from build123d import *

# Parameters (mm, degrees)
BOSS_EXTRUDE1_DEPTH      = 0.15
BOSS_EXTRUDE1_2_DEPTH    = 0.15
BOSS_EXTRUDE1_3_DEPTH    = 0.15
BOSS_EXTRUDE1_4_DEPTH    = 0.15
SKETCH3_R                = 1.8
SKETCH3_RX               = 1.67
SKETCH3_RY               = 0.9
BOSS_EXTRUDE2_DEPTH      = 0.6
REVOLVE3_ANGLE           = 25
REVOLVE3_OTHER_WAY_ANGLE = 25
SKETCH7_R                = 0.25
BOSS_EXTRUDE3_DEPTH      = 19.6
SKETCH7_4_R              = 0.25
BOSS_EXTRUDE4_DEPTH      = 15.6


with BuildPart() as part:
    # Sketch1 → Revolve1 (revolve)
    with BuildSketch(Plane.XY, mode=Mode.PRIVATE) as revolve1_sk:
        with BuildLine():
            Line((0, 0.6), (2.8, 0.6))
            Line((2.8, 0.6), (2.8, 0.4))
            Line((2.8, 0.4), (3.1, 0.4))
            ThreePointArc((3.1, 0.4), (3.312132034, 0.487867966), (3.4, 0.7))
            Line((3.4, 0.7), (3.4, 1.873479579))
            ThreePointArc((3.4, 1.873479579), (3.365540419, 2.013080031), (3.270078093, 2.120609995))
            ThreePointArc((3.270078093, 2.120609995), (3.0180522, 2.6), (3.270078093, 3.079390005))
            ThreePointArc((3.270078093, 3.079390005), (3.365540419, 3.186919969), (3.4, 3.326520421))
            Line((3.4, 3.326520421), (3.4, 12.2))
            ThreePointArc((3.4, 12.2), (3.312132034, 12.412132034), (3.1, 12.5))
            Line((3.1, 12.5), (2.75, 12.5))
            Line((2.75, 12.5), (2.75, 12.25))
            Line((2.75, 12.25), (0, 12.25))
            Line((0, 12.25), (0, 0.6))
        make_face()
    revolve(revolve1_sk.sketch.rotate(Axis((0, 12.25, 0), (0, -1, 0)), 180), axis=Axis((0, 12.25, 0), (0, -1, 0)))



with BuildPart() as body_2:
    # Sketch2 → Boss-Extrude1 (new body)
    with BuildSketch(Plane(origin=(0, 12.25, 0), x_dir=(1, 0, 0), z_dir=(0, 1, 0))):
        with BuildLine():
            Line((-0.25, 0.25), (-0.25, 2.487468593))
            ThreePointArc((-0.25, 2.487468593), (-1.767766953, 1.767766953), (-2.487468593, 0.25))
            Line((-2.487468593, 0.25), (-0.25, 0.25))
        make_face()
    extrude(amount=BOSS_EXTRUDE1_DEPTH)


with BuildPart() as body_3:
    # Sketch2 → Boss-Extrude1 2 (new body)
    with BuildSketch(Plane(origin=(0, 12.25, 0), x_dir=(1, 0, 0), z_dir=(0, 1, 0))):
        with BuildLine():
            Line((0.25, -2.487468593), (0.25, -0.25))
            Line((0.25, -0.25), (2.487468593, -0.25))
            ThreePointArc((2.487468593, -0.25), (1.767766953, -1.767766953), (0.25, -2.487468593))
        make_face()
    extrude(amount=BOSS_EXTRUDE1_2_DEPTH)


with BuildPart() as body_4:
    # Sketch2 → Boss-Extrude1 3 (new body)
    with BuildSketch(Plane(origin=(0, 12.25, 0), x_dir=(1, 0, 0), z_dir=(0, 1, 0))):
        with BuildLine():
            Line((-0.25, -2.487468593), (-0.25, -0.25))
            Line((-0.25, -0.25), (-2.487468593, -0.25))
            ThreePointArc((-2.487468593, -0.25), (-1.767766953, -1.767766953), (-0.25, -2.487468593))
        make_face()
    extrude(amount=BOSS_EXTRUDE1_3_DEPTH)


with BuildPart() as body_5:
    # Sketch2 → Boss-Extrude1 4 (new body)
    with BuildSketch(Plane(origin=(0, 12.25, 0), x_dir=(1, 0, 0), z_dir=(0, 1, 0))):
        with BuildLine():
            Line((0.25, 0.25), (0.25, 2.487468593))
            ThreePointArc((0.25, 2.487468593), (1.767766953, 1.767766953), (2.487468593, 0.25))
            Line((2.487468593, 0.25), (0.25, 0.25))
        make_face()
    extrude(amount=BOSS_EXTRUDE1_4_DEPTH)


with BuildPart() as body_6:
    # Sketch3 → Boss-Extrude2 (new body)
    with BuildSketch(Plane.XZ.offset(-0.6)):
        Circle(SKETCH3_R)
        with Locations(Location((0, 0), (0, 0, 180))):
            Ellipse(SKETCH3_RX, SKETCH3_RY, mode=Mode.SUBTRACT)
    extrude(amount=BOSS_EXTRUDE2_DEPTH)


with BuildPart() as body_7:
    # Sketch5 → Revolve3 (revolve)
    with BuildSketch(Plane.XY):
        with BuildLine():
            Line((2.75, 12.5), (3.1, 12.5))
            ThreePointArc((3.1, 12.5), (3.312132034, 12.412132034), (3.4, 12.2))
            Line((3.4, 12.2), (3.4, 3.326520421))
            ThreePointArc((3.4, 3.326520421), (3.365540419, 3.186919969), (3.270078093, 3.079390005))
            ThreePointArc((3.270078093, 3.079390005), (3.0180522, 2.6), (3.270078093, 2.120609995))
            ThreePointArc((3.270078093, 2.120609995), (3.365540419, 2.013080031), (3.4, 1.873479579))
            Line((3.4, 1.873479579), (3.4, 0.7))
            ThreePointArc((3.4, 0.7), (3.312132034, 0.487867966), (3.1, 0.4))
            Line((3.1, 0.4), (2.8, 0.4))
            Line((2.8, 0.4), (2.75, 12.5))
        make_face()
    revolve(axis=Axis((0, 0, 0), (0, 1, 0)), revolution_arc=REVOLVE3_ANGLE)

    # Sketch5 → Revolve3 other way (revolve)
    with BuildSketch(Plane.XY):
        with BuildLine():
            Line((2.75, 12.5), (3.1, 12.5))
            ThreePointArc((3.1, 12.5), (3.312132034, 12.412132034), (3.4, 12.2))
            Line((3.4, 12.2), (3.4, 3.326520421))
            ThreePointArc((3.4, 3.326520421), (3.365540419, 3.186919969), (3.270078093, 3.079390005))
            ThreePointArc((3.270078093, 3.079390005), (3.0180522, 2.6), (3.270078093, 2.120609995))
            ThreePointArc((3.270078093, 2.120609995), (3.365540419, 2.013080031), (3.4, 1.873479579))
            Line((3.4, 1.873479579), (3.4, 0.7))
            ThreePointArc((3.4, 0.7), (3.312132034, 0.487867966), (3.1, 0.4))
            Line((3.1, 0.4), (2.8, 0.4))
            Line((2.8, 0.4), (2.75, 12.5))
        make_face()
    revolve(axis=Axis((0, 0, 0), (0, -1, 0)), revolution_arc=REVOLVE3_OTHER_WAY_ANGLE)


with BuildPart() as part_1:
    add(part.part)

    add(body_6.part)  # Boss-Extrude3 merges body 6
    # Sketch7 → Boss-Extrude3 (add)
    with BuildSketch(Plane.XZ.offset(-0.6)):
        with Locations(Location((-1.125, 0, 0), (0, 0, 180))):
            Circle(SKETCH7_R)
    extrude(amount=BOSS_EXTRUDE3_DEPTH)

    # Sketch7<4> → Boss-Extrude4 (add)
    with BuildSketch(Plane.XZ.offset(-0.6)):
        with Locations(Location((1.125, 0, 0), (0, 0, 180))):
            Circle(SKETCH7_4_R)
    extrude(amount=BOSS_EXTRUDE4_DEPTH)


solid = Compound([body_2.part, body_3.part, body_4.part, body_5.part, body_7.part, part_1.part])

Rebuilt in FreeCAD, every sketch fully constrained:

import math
import FreeCAD as App
import Part
import Sketcher

doc = App.newDocument("Part")
body = doc.addObject("PartDesign::Body", "Body")

sketch1 = doc.addObject("Sketcher::SketchObject", "Sketch")
body.addObject(sketch1)
sketch1.AttachmentSupport = (doc.XY_Plane, [""])
sketch1.MapMode = "FlatFace"
sketch1.addGeometry([
    Part.LineSegment(App.Vector(0, 0.6, 0), App.Vector(2.8, 0.6, 0)),
    Part.LineSegment(App.Vector(2.8, 0.6, 0), App.Vector(2.8, 0.4, 0)),
    Part.LineSegment(App.Vector(2.8, 0.4, 0), App.Vector(3.1, 0.4, 0)),
    Part.ArcOfCircle(Part.Circle(App.Vector(3.1, 0.7, 0), App.Vector(0, 0, 1), 0.3), math.radians(-90), math.radians(0)),
    Part.LineSegment(App.Vector(3.4, 0.7, 0), App.Vector(3.4, 1.87, 0)),
    Part.ArcOfCircle(Part.Circle(App.Vector(3.1, 1.87, 0), App.Vector(0, 0, 1), 0.3), math.radians(0), math.radians(55)),
    Part.ArcOfCircle(Part.Circle(App.Vector(3.6, 2.6, 0), App.Vector(0, 0, 1), 0.58), math.radians(125), math.radians(235)),
    Part.ArcOfCircle(Part.Circle(App.Vector(3.1, 3.33, 0), App.Vector(0, 0, 1), 0.3), math.radians(-55), math.radians(0)),
    Part.LineSegment(App.Vector(3.4, 3.33, 0), App.Vector(3.4, 12.2, 0)),
    Part.ArcOfCircle(Part.Circle(App.Vector(3.1, 12.2, 0), App.Vector(0, 0, 1), 0.3), math.radians(0), math.radians(90)),
    Part.LineSegment(App.Vector(3.1, 12.5, 0), App.Vector(2.75, 12.5, 0)),
    Part.LineSegment(App.Vector(2.75, 12.5, 0), App.Vector(2.75, 12.25, 0)),
    Part.LineSegment(App.Vector(2.75, 12.25, 0), App.Vector(0, 12.25, 0)),
    Part.LineSegment(App.Vector(0, 12.25, 0), App.Vector(0, 0.6, 0)),
], False)
sketch1.addConstraint([
    Sketcher.Constraint("Coincident", 0, 2, 1, 1),
    Sketcher.Constraint("Coincident", 1, 2, 2, 1),
    Sketcher.Constraint("Tangent", 2, 2, 3, 1),
    Sketcher.Constraint("Tangent", 3, 2, 4, 1),
    Sketcher.Constraint("Tangent", 4, 2, 5, 1),
    Sketcher.Constraint("Tangent", 5, 2, 6, 2),
    Sketcher.Constraint("Tangent", 6, 1, 7, 1),
    Sketcher.Constraint("Tangent", 7, 2, 8, 1),
    Sketcher.Constraint("Tangent", 8, 2, 9, 1),
    Sketcher.Constraint("Tangent", 9, 2, 10, 1),
    Sketcher.Constraint("Coincident", 10, 2, 11, 1),
    Sketcher.Constraint("Coincident", 11, 2, 12, 1),
    Sketcher.Constraint("Coincident", 12, 2, 13, 1),
    Sketcher.Constraint("Coincident", 13, 2, 0, 1),
    Sketcher.Constraint("Horizontal", 0),
    Sketcher.Constraint("Vertical", 1),
    Sketcher.Constraint("Horizontal", 2),
    Sketcher.Constraint("Vertical", 4),
    Sketcher.Constraint("Vertical", 8),
    Sketcher.Constraint("Horizontal", 10),
    Sketcher.Constraint("Vertical", 11),
    Sketcher.Constraint("Horizontal", 12),
    Sketcher.Constraint("Vertical", 13),
    Sketcher.Constraint("Equal", 3, 5),
    Sketcher.Constraint("Equal", 5, 7),
    Sketcher.Constraint("Equal", 7, 9),
    Sketcher.Constraint("PointOnObject", 12, 2, -2),
    Sketcher.Constraint("Vertical", 5, 3, 7, 3),
    Sketcher.Constraint("Radius", 3, 0.3),
    Sketcher.Constraint("DistanceX", 0, 1, 0, 2, 2.8),
    Sketcher.Constraint("DistanceX", 2, 1, 2, 2, 0.3),
    Sketcher.Constraint("DistanceY", 1, 2, 1, 1, 0.2),
    Sketcher.Constraint("DistanceY", 0, 2, 6, 3, 2.0),
    Sketcher.Constraint("DistanceX", 10, 2, 10, 1, 0.35),
    Sketcher.Constraint("DistanceY", 11, 2, 11, 1, 0.25),
    Sketcher.Constraint("DistanceY", 13, 2, 13, 1, 11.65),
    Sketcher.Constraint("DistanceY", -1, 1, 3, 3, 0.7),
    Sketcher.Constraint("DistanceX", -1, 1, 6, 3, 3.6),
    Sketcher.Constraint("Radius", 6, 0.581948),
])
revolution = doc.addObject("PartDesign::Revolution", "Revolution")
body.addObject(revolution)
revolution.Profile = sketch1
revolution.ReferenceAxis = (sketch1, ["V_Axis"])
revolution.Angle = 360
body2 = doc.addObject("PartDesign::Body", "Body001")

sketch2 = doc.addObject("Sketcher::SketchObject", "Sketch001")
body2.addObject(sketch2)
sketch2.AttachmentSupport = (doc.getObject("XZ_Plane001"), [""])
sketch2.MapMode = "FlatFace"
sketch2.AttachmentOffset = App.Placement(App.Vector(0, 0, -12.25), App.Rotation())
sketch2.addGeometry([
    Part.LineSegment(App.Vector(-0.2, -0.2, 0), App.Vector(-0.2, -2.5, 0)),
    Part.ArcOfCircle(Part.Circle(App.Vector(0, 0, 0), App.Vector(0, 0, 1), 2.5), math.radians(-174), math.radians(-96)),
    Part.LineSegment(App.Vector(-2.5, -0.2, 0), App.Vector(-0.2, -0.2, 0)),
], False)
sketch2.addConstraint([
    Sketcher.Constraint("Coincident", 0, 2, 1, 2),
    Sketcher.Constraint("Coincident", 1, 1, 2, 1),
    Sketcher.Constraint("Coincident", 2, 2, 0, 1),
    Sketcher.Constraint("Vertical", 0),
    Sketcher.Constraint("Horizontal", 2),
    Sketcher.Constraint("Coincident", 1, 3, -1, 1),
    Sketcher.Constraint("Equal", 2, 0),
    Sketcher.Constraint("Radius", 1, 2.5),
    Sketcher.Constraint("DistanceX", 0, 2, -1, 1, 0.25),
])
pad1 = doc.addObject("PartDesign::Pad", "Pad")
body2.addObject(pad1)
pad1.Profile = sketch2
pad1.Length = 0.15
pad1.Reversed = True
body3 = doc.addObject("PartDesign::Body", "Body002")

sketch3 = doc.addObject("Sketcher::SketchObject", "Sketch002")
body3.addObject(sketch3)
sketch3.AttachmentSupport = (doc.getObject("XZ_Plane002"), [""])
sketch3.MapMode = "FlatFace"
sketch3.AttachmentOffset = App.Placement(App.Vector(0, 0, -12.25), App.Rotation())
sketch3.addGeometry([
    Part.LineSegment(App.Vector(0.2, 0.2, 0), App.Vector(0.2, 2.5, 0)),
    Part.ArcOfCircle(Part.Circle(App.Vector(0, 0, 0), App.Vector(0, 0, 1), 2.5), math.radians(6), math.radians(84)),
    Part.LineSegment(App.Vector(2.5, 0.2, 0), App.Vector(0.2, 0.2, 0)),
], False)
sketch3.addConstraint([
    Sketcher.Constraint("Coincident", 0, 2, 1, 2),
    Sketcher.Constraint("Coincident", 1, 1, 2, 1),
    Sketcher.Constraint("Coincident", 2, 2, 0, 1),
    Sketcher.Constraint("Vertical", 0),
    Sketcher.Constraint("Horizontal", 2),
    Sketcher.Constraint("Coincident", 1, 3, -1, 1),
    Sketcher.Constraint("Equal", 2, 0),
    Sketcher.Constraint("Radius", 1, 2.5),
    Sketcher.Constraint("DistanceX", -1, 1, 0, 2, 0.25),
])
pad2 = doc.addObject("PartDesign::Pad", "Pad001")
body3.addObject(pad2)
pad2.Profile = sketch3
pad2.Length = 0.15
pad2.Reversed = True
body4 = doc.addObject("PartDesign::Body", "Body003")

sketch4 = doc.addObject("Sketcher::SketchObject", "Sketch003")
body4.addObject(sketch4)
sketch4.AttachmentSupport = (doc.getObject("XZ_Plane003"), [""])
sketch4.MapMode = "FlatFace"
sketch4.AttachmentOffset = App.Placement(App.Vector(0, 0, -12.25), App.Rotation())
sketch4.addGeometry([
    Part.LineSegment(App.Vector(-0.2, 2.5, 0), App.Vector(-0.2, 0.2, 0)),
    Part.LineSegment(App.Vector(-0.2, 0.2, 0), App.Vector(-2.5, 0.2, 0)),
    Part.ArcOfCircle(Part.Circle(App.Vector(0, 0, 0), App.Vector(0, 0, 1), 2.5), math.radians(96), math.radians(174)),
], False)
sketch4.addConstraint([
    Sketcher.Constraint("Coincident", 0, 2, 1, 1),
    Sketcher.Constraint("Coincident", 1, 2, 2, 2),
    Sketcher.Constraint("Coincident", 2, 1, 0, 1),
    Sketcher.Constraint("Vertical", 0),
    Sketcher.Constraint("Horizontal", 1),
    Sketcher.Constraint("Coincident", 2, 3, -1, 1),
    Sketcher.Constraint("Equal", 1, 0),
    Sketcher.Constraint("Radius", 2, 2.5),
    Sketcher.Constraint("DistanceX", 0, 2, -1, 1, 0.25),
])
pad3 = doc.addObject("PartDesign::Pad", "Pad002")
body4.addObject(pad3)
pad3.Profile = sketch4
pad3.Length = 0.15
pad3.Reversed = True
body5 = doc.addObject("PartDesign::Body", "Body004")

sketch5 = doc.addObject("Sketcher::SketchObject", "Sketch004")
body5.addObject(sketch5)
sketch5.AttachmentSupport = (doc.getObject("XZ_Plane004"), [""])
sketch5.MapMode = "FlatFace"
sketch5.AttachmentOffset = App.Placement(App.Vector(0, 0, -12.25), App.Rotation())
sketch5.addGeometry([
    Part.LineSegment(App.Vector(0.2, -2.5, 0), App.Vector(0.2, -0.2, 0)),
    Part.LineSegment(App.Vector(0.2, -0.2, 0), App.Vector(2.5, -0.2, 0)),
    Part.ArcOfCircle(Part.Circle(App.Vector(0, 0, 0), App.Vector(0, 0, 1), 2.5), math.radians(-84), math.radians(-6)),
], False)
sketch5.addConstraint([
    Sketcher.Constraint("Coincident", 0, 2, 1, 1),
    Sketcher.Constraint("Coincident", 1, 2, 2, 2),
    Sketcher.Constraint("Coincident", 2, 1, 0, 1),
    Sketcher.Constraint("Vertical", 0),
    Sketcher.Constraint("Horizontal", 1),
    Sketcher.Constraint("Coincident", 2, 3, -1, 1),
    Sketcher.Constraint("Equal", 1, 0),
    Sketcher.Constraint("Radius", 2, 2.5),
    Sketcher.Constraint("DistanceX", -1, 1, 0, 2, 0.25),
])
pad4 = doc.addObject("PartDesign::Pad", "Pad003")
body5.addObject(pad4)
pad4.Profile = sketch5
pad4.Length = 0.15
pad4.Reversed = True
body6 = doc.addObject("PartDesign::Body", "Body005")

sketch6 = doc.addObject("Sketcher::SketchObject", "Sketch005")
body6.addObject(sketch6)
sketch6.AttachmentSupport = (doc.getObject("XZ_Plane005"), [""])
sketch6.MapMode = "FlatFace"
sketch6.AttachmentOffset = App.Placement(App.Vector(0, 0, -0.6), App.Rotation())
sketch6.addGeometry([
    Part.Circle(App.Vector(0, 0, 0), App.Vector(0, 0, 1), 1.8),
    Part.Ellipse(App.Vector(-1.67, 0, 0), App.Vector(0, -0.9, 0), App.Vector(0, 0, 0)),
], False)
sketch6.addConstraint([
    Sketcher.Constraint("Block", 1),
    Sketcher.Constraint("Coincident", 0, 3, -1, 1),
    Sketcher.Constraint("Diameter", 0, 3.6),
])
pad5 = doc.addObject("PartDesign::Pad", "Pad004")
body6.addObject(pad5)
pad5.Profile = sketch6
pad5.Length = 0.6
body7 = doc.addObject("PartDesign::Body", "Body006")

sketch7 = doc.addObject("Sketcher::SketchObject", "Sketch006")
body7.addObject(sketch7)
sketch7.AttachmentSupport = (doc.getObject("XY_Plane006"), [""])
sketch7.MapMode = "FlatFace"
sketch7.addGeometry([
    Part.LineSegment(App.Vector(3.1, 12.5, 0), App.Vector(2.75, 12.5, 0)),
    Part.LineSegment(App.Vector(2.75, 12.5, 0), App.Vector(2.8, 0.4, 0)),
    Part.LineSegment(App.Vector(2.8, 0.4, 0), App.Vector(3.1, 0.4, 0)),
    Part.ArcOfCircle(Part.Circle(App.Vector(3.1, 0.7, 0), App.Vector(0, 0, 1), 0.3), math.radians(-90), math.radians(0)),
    Part.LineSegment(App.Vector(3.4, 0.7, 0), App.Vector(3.4, 1.87, 0)),
    Part.ArcOfCircle(Part.Circle(App.Vector(3.1, 1.87, 0), App.Vector(0, 0, 1), 0.3), math.radians(0), math.radians(55)),
    Part.ArcOfCircle(Part.Circle(App.Vector(3.6, 2.6, 0), App.Vector(0, 0, 1), 0.58), math.radians(125), math.radians(235)),
    Part.ArcOfCircle(Part.Circle(App.Vector(3.1, 3.33, 0), App.Vector(0, 0, 1), 0.3), math.radians(-55), math.radians(0)),
    Part.LineSegment(App.Vector(3.4, 3.33, 0), App.Vector(3.4, 12.2, 0)),
    Part.ArcOfCircle(Part.Circle(App.Vector(3.1, 12.2, 0), App.Vector(0, 0, 1), 0.3), math.radians(0), math.radians(90)),
], False)
sketch7.addConstraint([
    Sketcher.Constraint("Coincident", 0, 2, 1, 1),
    Sketcher.Constraint("Coincident", 1, 2, 2, 1),
    Sketcher.Constraint("Tangent", 2, 2, 3, 1),
    Sketcher.Constraint("Tangent", 3, 2, 4, 1),
    Sketcher.Constraint("Tangent", 4, 2, 5, 1),
    Sketcher.Constraint("Tangent", 5, 2, 6, 2),
    Sketcher.Constraint("Tangent", 6, 1, 7, 1),
    Sketcher.Constraint("Tangent", 7, 2, 8, 1),
    Sketcher.Constraint("Tangent", 8, 2, 9, 1),
    Sketcher.Constraint("Tangent", 9, 2, 0, 1),
    Sketcher.Constraint("Horizontal", 0),
    Sketcher.Constraint("Horizontal", 2),
    Sketcher.Constraint("Vertical", 4),
    Sketcher.Constraint("Vertical", 8),
    Sketcher.Constraint("Equal", 3, 5),
    Sketcher.Constraint("Equal", 5, 7),
    Sketcher.Constraint("Equal", 7, 9),
    Sketcher.Constraint("Vertical", 5, 3, 7, 3),
    Sketcher.Constraint("Radius", 3, 0.3),
    Sketcher.Constraint("DistanceX", 2, 1, 2, 2, 0.3),
    Sketcher.Constraint("DistanceX", 0, 2, 0, 1, 0.35),
    Sketcher.Constraint("DistanceX", -1, 1, 3, 3, 3.1),
    Sketcher.Constraint("DistanceY", -1, 1, 3, 3, 0.7),
    Sketcher.Constraint("DistanceX", -1, 1, 6, 3, 3.6),
    Sketcher.Constraint("DistanceY", -1, 1, 6, 3, 2.6),
    Sketcher.Constraint("DistanceY", -1, 1, 9, 3, 12.2),
    Sketcher.Constraint("Radius", 6, 0.581948),
])
revolution2 = doc.addObject("PartDesign::Revolution", "Revolution001")
body7.addObject(revolution2)
revolution2.Profile = sketch7
revolution2.ReferenceAxis = (sketch7, ["V_Axis"])
revolution2.Angle = 25

sketch8 = doc.addObject("Sketcher::SketchObject", "Sketch007")
body7.addObject(sketch8)
sketch8.AttachmentSupport = (doc.getObject("XY_Plane006"), [""])
sketch8.MapMode = "FlatFace"
sketch8.addGeometry([
    Part.LineSegment(App.Vector(3.1, 12.5, 0), App.Vector(2.75, 12.5, 0)),
    Part.LineSegment(App.Vector(2.75, 12.5, 0), App.Vector(2.8, 0.4, 0)),
    Part.LineSegment(App.Vector(2.8, 0.4, 0), App.Vector(3.1, 0.4, 0)),
    Part.ArcOfCircle(Part.Circle(App.Vector(3.1, 0.7, 0), App.Vector(0, 0, 1), 0.3), math.radians(-90), math.radians(0)),
    Part.LineSegment(App.Vector(3.4, 0.7, 0), App.Vector(3.4, 1.87, 0)),
    Part.ArcOfCircle(Part.Circle(App.Vector(3.1, 1.87, 0), App.Vector(0, 0, 1), 0.3), math.radians(0), math.radians(55)),
    Part.ArcOfCircle(Part.Circle(App.Vector(3.6, 2.6, 0), App.Vector(0, 0, 1), 0.58), math.radians(125), math.radians(235)),
    Part.ArcOfCircle(Part.Circle(App.Vector(3.1, 3.33, 0), App.Vector(0, 0, 1), 0.3), math.radians(-55), math.radians(0)),
    Part.LineSegment(App.Vector(3.4, 3.33, 0), App.Vector(3.4, 12.2, 0)),
    Part.ArcOfCircle(Part.Circle(App.Vector(3.1, 12.2, 0), App.Vector(0, 0, 1), 0.3), math.radians(0), math.radians(90)),
], False)
sketch8.addConstraint([
    Sketcher.Constraint("Coincident", 0, 2, 1, 1),
    Sketcher.Constraint("Coincident", 1, 2, 2, 1),
    Sketcher.Constraint("Tangent", 2, 2, 3, 1),
    Sketcher.Constraint("Tangent", 3, 2, 4, 1),
    Sketcher.Constraint("Tangent", 4, 2, 5, 1),
    Sketcher.Constraint("Tangent", 5, 2, 6, 2),
    Sketcher.Constraint("Tangent", 6, 1, 7, 1),
    Sketcher.Constraint("Tangent", 7, 2, 8, 1),
    Sketcher.Constraint("Tangent", 8, 2, 9, 1),
    Sketcher.Constraint("Tangent", 9, 2, 0, 1),
    Sketcher.Constraint("Horizontal", 0),
    Sketcher.Constraint("Horizontal", 2),
    Sketcher.Constraint("Vertical", 4),
    Sketcher.Constraint("Vertical", 8),
    Sketcher.Constraint("Equal", 3, 5),
    Sketcher.Constraint("Equal", 5, 7),
    Sketcher.Constraint("Equal", 7, 9),
    Sketcher.Constraint("Vertical", 5, 3, 7, 3),
    Sketcher.Constraint("Radius", 3, 0.3),
    Sketcher.Constraint("DistanceX", 2, 1, 2, 2, 0.3),
    Sketcher.Constraint("DistanceX", 0, 2, 0, 1, 0.35),
    Sketcher.Constraint("DistanceX", -1, 1, 3, 3, 3.1),
    Sketcher.Constraint("DistanceY", -1, 1, 3, 3, 0.7),
    Sketcher.Constraint("DistanceX", -1, 1, 6, 3, 3.6),
    Sketcher.Constraint("DistanceY", -1, 1, 6, 3, 2.6),
    Sketcher.Constraint("DistanceY", -1, 1, 9, 3, 12.2),
    Sketcher.Constraint("Radius", 6, 0.581948),
])
revolution3 = doc.addObject("PartDesign::Revolution", "Revolution002")
body7.addObject(revolution3)
revolution3.Profile = sketch8
revolution3.ReferenceAxis = (sketch8, ["V_Axis"])
revolution3.Angle = 25
revolution3.Reversed = True
doc.recompute()

boolean = doc.addObject("PartDesign::Boolean", "Boolean")
body.addObject(boolean)
boolean.Type = "Fuse"
boolean.addObjects([body6])

sketch9 = doc.addObject("Sketcher::SketchObject", "Sketch008")
body.addObject(sketch9)
sketch9.AttachmentSupport = (doc.XZ_Plane, [""])
sketch9.MapMode = "FlatFace"
sketch9.AttachmentOffset = App.Placement(App.Vector(0, 0, -0.6), App.Rotation())
sketch9.addGeometry(Part.Circle(App.Vector(-1.12, 0, 0), App.Vector(0, 0, 1), 0.25), False)
sketch9.addConstraint([
    Sketcher.Constraint("PointOnObject", 0, 3, -1),
    Sketcher.Constraint("Diameter", 0, 0.5),
    Sketcher.Constraint("DistanceX", 0, 3, -1, 1, 1.125),
])
pad6 = doc.addObject("PartDesign::Pad", "Pad005")
body.addObject(pad6)
pad6.Profile = sketch9
pad6.Length = 19.6

sketch10 = doc.addObject("Sketcher::SketchObject", "Sketch009")
body.addObject(sketch10)
sketch10.AttachmentSupport = (doc.XZ_Plane, [""])
sketch10.MapMode = "FlatFace"
sketch10.AttachmentOffset = App.Placement(App.Vector(0, 0, -0.6), App.Rotation())
sketch10.addGeometry(Part.Circle(App.Vector(1.12, 0, 0), App.Vector(0, 0, 1), 0.25), False)
sketch10.addConstraint([
    Sketcher.Constraint("PointOnObject", 0, 3, -1),
    Sketcher.Constraint("Diameter", 0, 0.5),
    Sketcher.Constraint("DistanceX", -1, 1, 0, 3, 1.125),
])
pad7 = doc.addObject("PartDesign::Pad", "Pad006")
body.addObject(pad7)
pad7.Profile = sketch10
pad7.Length = 15.6

doc.recompute()
